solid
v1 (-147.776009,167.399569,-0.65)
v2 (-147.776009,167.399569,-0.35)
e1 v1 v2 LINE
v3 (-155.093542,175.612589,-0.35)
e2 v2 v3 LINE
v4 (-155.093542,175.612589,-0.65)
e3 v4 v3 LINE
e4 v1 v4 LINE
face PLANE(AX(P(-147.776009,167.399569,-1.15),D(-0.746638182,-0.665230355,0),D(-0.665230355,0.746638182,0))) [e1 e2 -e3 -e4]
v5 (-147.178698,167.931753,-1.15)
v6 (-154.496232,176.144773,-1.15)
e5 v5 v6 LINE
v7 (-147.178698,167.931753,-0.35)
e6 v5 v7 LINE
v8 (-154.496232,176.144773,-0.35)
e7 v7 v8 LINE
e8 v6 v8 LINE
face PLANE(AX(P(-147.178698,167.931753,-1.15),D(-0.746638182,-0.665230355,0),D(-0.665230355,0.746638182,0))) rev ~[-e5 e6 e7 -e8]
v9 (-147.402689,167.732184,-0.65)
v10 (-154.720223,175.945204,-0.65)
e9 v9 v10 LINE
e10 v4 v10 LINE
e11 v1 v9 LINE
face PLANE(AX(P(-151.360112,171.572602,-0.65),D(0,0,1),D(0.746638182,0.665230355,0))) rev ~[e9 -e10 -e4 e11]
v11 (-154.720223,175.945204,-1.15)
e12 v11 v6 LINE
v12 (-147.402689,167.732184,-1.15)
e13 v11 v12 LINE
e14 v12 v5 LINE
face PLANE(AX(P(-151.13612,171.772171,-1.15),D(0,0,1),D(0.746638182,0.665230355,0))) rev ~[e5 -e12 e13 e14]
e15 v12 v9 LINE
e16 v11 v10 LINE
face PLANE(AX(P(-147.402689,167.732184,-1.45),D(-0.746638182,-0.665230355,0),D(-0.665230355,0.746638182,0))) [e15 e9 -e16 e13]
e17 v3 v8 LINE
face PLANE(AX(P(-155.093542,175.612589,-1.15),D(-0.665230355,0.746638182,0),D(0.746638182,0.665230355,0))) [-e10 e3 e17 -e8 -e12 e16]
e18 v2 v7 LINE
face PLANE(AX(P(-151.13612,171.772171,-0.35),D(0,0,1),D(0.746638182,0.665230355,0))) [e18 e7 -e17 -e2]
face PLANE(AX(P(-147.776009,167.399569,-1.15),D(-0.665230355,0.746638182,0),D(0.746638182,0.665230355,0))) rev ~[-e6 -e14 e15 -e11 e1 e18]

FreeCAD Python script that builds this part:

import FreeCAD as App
import Part
import Sketcher

V = App.Vector
Q = App.Units.Quantity

doc = App.newDocument("Part")
params = doc.addObject("Spreadsheet::Sheet", "Params")
for row, (alias, value) in enumerate([
    ("sketch1_height", "11 mm"),
    ("sketch1_width", "0.8 mm"),
    ("pad1_length", "0.8 mm"),
    ("sketch2_height", "11 mm"),
    ("sketch2_width", "0.8 mm"),
    ("pad2_length", "0.8 mm"),
], start=1):
    params.set(f"A{row}", alias)
    params.set(f"B{row}", "=" + value)
    params.setAlias(f"B{row}", alias)

body = doc.addObject("PartDesign::Body", "Body")

sketch1 = body.newObject("Sketcher::SketchObject", "Sketch")
sketch1.AttachmentSupport = (doc.getObject("XY_Plane"), [""])
sketch1.MapMode = "FlatFace"
sketch1.addGeometry(Part.LineSegment(V(0, 11, 0), V(0, 0, 0)), False)
sketch1.addGeometry(Part.LineSegment(V(0, 0, 0), V(0.8, 0, 0)), False)
sketch1.addGeometry(Part.LineSegment(V(0.8, 0, 0), V(0.8, 11, 0)), False)
sketch1.addGeometry(Part.LineSegment(V(0.8, 11, 0), V(0, 11, 0)), False)
sketch1.addConstraint(Sketcher.Constraint("Coincident", 0, 2, 1, 1))
sketch1.addConstraint(Sketcher.Constraint("Coincident", 1, 2, 2, 1))
sketch1.addConstraint(Sketcher.Constraint("Coincident", 2, 2, 3, 1))
sketch1.addConstraint(Sketcher.Constraint("Coincident", 3, 2, 0, 1))
sketch1.addConstraint(Sketcher.Constraint("Vertical", 0))
sketch1.addConstraint(Sketcher.Constraint("Horizontal", 1))
sketch1.addConstraint(Sketcher.Constraint("Vertical", 2))
sketch1.addConstraint(Sketcher.Constraint("Horizontal", 3))
sketch1.addConstraint(Sketcher.Constraint("Coincident", 0, 2, -1, 1))
sketch1.addConstraint(Sketcher.Constraint("DistanceY", 0, 2, 0, 1, Q("11 mm")))
sketch1.addConstraint(Sketcher.Constraint("DistanceX", 1, 1, 1, 2, Q("0.8 mm")))
sketch1.setExpression("Constraints[9]", "Params.sketch1_height")
sketch1.setExpression("Constraints[10]", "Params.sketch1_width")
pad1 = body.newObject("PartDesign::Pad", "Pad")
pad1.Profile = sketch1
pad1.setExpression("Length", "Params.pad1_length")
body2 = doc.addObject("PartDesign::Body", "Body001")

sketch2 = body2.newObject("Sketcher::SketchObject", "Sketch001")
sketch2.AttachmentSupport = (doc.getObject("XY_Plane001"), [""])
sketch2.MapMode = "FlatFace"
sketch2.AttachmentOffset = App.Placement(V(0, 0, 0.3), App.Rotation())
sketch2.addGeometry(Part.LineSegment(V(0.3, 11, 0), V(0.3, 0, 0)), False)
sketch2.addGeometry(Part.LineSegment(V(0.3, 0, 0), V(1.1, 0, 0)), False)
sketch2.addGeometry(Part.LineSegment(V(1.1, 0, 0), V(1.1, 11, 0)), False)
sketch2.addGeometry(Part.LineSegment(V(1.1, 11, 0), V(0.3, 11, 0)), False)
sketch2.addConstraint(Sketcher.Constraint("Coincident", 0, 2, 1, 1))
sketch2.addConstraint(Sketcher.Constraint("Coincident", 1, 2, 2, 1))
sketch2.addConstraint(Sketcher.Constraint("Coincident", 2, 2, 3, 1))
sketch2.addConstraint(Sketcher.Constraint("Coincident", 3, 2, 0, 1))
sketch2.addConstraint(Sketcher.Constraint("Vertical", 0))
sketch2.addConstraint(Sketcher.Constraint("Horizontal", 1))
sketch2.addConstraint(Sketcher.Constraint("Vertical", 2))
sketch2.addConstraint(Sketcher.Constraint("Horizontal", 3))
sketch2.addConstraint(Sketcher.Constraint("PointOnObject", 0, 2, -1))
sketch2.addConstraint(Sketcher.Constraint("DistanceY", 0, 2, 0, 1, Q("11 mm")))
sketch2.addConstraint(Sketcher.Constraint("DistanceX", 1, 1, 1, 2, Q("0.8 mm")))
sketch2.addConstraint(Sketcher.Constraint("DistanceX", -1, 1, 0, 2, Q("0.3 mm")))
sketch2.setExpression("Constraints[9]", "Params.sketch2_height")
sketch2.setExpression("Constraints[10]", "Params.sketch2_width")
pad2 = body2.newObject("PartDesign::Pad", "Pad001")
pad2.Profile = sketch2
pad2.setExpression("Length", "Params.pad2_length")
doc.recompute()

boolean = body2.newObject("PartDesign::Boolean", "Boolean")
boolean.Type = "Cut"
boolean.addObjects([body])
body3 = doc.addObject("PartDesign::Body", "Body002")
doc.recompute()

body2.Placement = App.Placement(V(-148, 167.2, -1.45), App.Rotation(V(0, 0, 1), 41.7))
boolean2 = body3.newObject("PartDesign::Boolean", "Boolean001")
boolean2.Type = "Fuse"
boolean2.addObjects([body2])

doc.recompute()
